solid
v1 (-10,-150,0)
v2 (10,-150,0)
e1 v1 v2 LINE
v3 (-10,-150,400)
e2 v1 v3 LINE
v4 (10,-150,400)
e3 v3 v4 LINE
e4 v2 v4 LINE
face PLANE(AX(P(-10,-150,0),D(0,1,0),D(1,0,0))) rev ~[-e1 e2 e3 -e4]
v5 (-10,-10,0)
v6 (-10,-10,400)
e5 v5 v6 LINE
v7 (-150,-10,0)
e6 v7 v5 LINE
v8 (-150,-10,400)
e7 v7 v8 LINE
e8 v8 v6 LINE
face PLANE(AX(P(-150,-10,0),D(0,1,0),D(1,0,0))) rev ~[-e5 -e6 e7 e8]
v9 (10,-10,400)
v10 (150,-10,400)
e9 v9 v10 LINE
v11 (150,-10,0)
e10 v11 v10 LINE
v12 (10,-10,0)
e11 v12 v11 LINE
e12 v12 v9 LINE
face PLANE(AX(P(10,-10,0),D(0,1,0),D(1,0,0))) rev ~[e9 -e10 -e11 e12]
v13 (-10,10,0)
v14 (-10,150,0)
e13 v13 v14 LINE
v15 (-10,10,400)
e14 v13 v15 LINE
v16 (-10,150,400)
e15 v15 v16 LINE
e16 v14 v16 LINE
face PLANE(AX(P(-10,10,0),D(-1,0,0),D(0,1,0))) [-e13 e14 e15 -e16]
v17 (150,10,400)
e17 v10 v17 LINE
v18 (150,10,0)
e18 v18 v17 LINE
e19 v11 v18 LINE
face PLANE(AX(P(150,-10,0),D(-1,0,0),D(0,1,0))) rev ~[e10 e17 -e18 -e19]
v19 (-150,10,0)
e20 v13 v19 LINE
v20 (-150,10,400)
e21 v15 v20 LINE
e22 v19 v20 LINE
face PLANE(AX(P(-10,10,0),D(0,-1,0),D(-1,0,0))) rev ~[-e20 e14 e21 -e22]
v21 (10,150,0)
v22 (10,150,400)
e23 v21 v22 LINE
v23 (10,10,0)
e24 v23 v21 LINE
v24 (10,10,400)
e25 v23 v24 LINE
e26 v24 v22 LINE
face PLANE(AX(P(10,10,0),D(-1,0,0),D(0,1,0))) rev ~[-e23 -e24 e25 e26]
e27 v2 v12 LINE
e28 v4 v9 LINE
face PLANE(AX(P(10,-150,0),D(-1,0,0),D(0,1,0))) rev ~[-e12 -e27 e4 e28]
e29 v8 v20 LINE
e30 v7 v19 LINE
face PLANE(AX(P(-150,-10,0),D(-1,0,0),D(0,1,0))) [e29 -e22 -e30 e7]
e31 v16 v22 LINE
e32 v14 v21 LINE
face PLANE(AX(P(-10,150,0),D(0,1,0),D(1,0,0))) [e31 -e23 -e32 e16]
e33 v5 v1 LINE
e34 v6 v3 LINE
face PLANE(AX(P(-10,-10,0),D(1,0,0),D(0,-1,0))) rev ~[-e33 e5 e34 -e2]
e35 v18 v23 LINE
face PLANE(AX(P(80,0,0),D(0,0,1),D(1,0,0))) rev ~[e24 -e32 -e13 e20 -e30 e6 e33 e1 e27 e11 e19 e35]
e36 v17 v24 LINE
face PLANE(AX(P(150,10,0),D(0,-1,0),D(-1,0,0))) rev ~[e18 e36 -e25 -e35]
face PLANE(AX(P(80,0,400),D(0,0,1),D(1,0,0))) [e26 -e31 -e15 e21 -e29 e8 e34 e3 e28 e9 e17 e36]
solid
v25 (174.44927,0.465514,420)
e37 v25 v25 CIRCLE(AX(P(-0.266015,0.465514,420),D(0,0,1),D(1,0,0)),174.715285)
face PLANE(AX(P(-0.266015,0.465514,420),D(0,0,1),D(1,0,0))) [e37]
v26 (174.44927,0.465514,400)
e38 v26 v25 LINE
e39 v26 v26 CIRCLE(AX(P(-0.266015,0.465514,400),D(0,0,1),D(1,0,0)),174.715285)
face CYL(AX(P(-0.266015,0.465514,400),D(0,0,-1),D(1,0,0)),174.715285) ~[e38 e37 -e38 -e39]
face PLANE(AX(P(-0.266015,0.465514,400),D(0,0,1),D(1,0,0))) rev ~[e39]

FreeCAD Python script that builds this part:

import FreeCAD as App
import Part
import Sketcher

V = App.Vector

doc = App.newDocument("Part")
body = doc.addObject("PartDesign::Body", "Body")

sketch1 = body.newObject("Sketcher::SketchObject", "Sketch")
sketch1.AttachmentSupport = (doc.getObject("XY_Plane"), [""])
sketch1.MapMode = "FlatFace"
sketch1.addGeometry([
    Part.LineSegment(V(10, -10, 0), V(150, -10, 0)),
    Part.LineSegment(V(150, -10, 0), V(150, 10, 0)),
    Part.LineSegment(V(150, 10, 0), V(10, 10, 0)),
    Part.LineSegment(V(10, 10, 0), V(10, 150, 0)),
    Part.LineSegment(V(10, 150, 0), V(-10, 150, 0)),
    Part.LineSegment(V(-10, 150, 0), V(-10, 10, 0)),
    Part.LineSegment(V(-10, 10, 0), V(-150, 10, 0)),
    Part.LineSegment(V(-150, 10, 0), V(-150, -10, 0)),
    Part.LineSegment(V(-150, -10, 0), V(-10, -10, 0)),
    Part.LineSegment(V(-10, -10, 0), V(-10, -150, 0)),
    Part.LineSegment(V(-10, -150, 0), V(10, -150, 0)),
    Part.LineSegment(V(10, -150, 0), V(10, -10, 0)),
], False)
sketch1.addConstraint([
    Sketcher.Constraint("Coincident", 0, 2, 1, 1),
    Sketcher.Constraint("Coincident", 1, 2, 2, 1),
    Sketcher.Constraint("Coincident", 2, 2, 3, 1),
    Sketcher.Constraint("Coincident", 3, 2, 4, 1),
    Sketcher.Constraint("Coincident", 4, 2, 5, 1),
    Sketcher.Constraint("Coincident", 5, 2, 6, 1),
    Sketcher.Constraint("Coincident", 6, 2, 7, 1),
    Sketcher.Constraint("Coincident", 7, 2, 8, 1),
    Sketcher.Constraint("Coincident", 8, 2, 9, 1),
    Sketcher.Constraint("Coincident", 9, 2, 10, 1),
    Sketcher.Constraint("Coincident", 10, 2, 11, 1),
    Sketcher.Constraint("Coincident", 11, 2, 0, 1),
    Sketcher.Constraint("Horizontal", 0),
    Sketcher.Constraint("Vertical", 1),
    Sketcher.Constraint("Horizontal", 2),
    Sketcher.Constraint("Vertical", 3),
    Sketcher.Constraint("Horizontal", 4),
    Sketcher.Constraint("Vertical", 5),
    Sketcher.Constraint("Horizontal", 6),
    Sketcher.Constraint("Vertical", 7),
    Sketcher.Constraint("Horizontal", 8),
    Sketcher.Constraint("Vertical", 9),
    Sketcher.Constraint("Horizontal", 10),
    Sketcher.Constraint("Vertical", 11),
    Sketcher.Constraint("Symmetric", 0, 2, 6, 2, -1, 1),
    Sketcher.Constraint("Symmetric", 2, 2, 8, 2, -1, 1),
    Sketcher.Constraint("Symmetric", 4, 2, 10, 2, -1, 1),
    Sketcher.Constraint("Symmetric", 2, 2, 5, 2, -2),
    Sketcher.Constraint("Equal", 10, 1),
    Sketcher.Constraint("Equal", 8, 3),
    Sketcher.Constraint("DistanceX", 0, 1, 0, 2, 140.0),
    Sketcher.Constraint("DistanceX", 4, 2, 4, 1, 20.0),
])
pad1 = body.newObject("PartDesign::Pad", "Pad")
pad1.Profile = sketch1
pad1.Length = 400
body2 = doc.addObject("PartDesign::Body", "Body001")

sketch2 = body2.newObject("Sketcher::SketchObject", "Sketch001")
sketch2.AttachmentSupport = (doc.getObject("XY_Plane001"), [""])
sketch2.MapMode = "FlatFace"
sketch2.AttachmentOffset = App.Placement(V(0, 0, 400), App.Rotation())
sketch2.addGeometry(Part.Circle(V(-0.266015, 0.465514, 0), V(0, 0, 1), 174.715285), False)
sketch2.addConstraint([
    Sketcher.Constraint("Diameter", 0, 349.43057),
    Sketcher.Constraint("DistanceX", 0, 3, -1, 1, 0.266015),
    Sketcher.Constraint("DistanceY", -1, 1, 0, 3, 0.465514),
])
pad2 = body2.newObject("PartDesign::Pad", "Pad001")
pad2.Profile = sketch2
pad2.Length = 20

doc.recompute()
